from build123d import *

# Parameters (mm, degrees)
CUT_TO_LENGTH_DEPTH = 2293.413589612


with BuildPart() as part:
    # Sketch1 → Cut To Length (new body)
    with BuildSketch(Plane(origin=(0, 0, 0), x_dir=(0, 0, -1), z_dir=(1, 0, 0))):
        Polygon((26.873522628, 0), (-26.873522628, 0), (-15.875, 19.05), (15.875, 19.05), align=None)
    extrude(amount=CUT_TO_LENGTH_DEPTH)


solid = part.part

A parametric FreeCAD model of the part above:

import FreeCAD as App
import Part
import Sketcher

V = App.Vector
Q = App.Units.Quantity

doc = App.newDocument("Part")
body = doc.addObject("PartDesign::Body", "Body")

# Sketch on YZ plane
sketch1 = body.newObject("Sketcher::SketchObject", "Sketch")
sketch1.AttachmentSupport = (doc.getObject("YZ_Plane"), [""])
sketch1.MapMode = "FlatFace"
sketch1.addGeometry(Part.LineSegment(V(0, 26.873523, 0), V(0, -26.873523, 0)), False)
sketch1.addGeometry(Part.LineSegment(V(0, -26.873523, 0), V(19.05, -15.875, 0)), False)
sketch1.addGeometry(Part.LineSegment(V(19.05, -15.875, 0), V(19.05, 15.875, 0)), False)
sketch1.addGeometry(Part.LineSegment(V(19.05, 15.875, 0), V(0, 26.873523, 0)), False)
sketch1.addConstraint(Sketcher.Constraint("Coincident", 0, 2, 1, 1))
sketch1.addConstraint(Sketcher.Constraint("Coincident", 1, 2, 2, 1))
sketch1.addConstraint(Sketcher.Constraint("Coincident", 2, 2, 3, 1))
sketch1.addConstraint(Sketcher.Constraint("Coincident", 3, 2, 0, 1))
sketch1.addConstraint(Sketcher.Constraint("Vertical", 0))
sketch1.addConstraint(Sketcher.Constraint("Vertical", 2))
sketch1.addConstraint(Sketcher.Constraint("Symmetric", 0, 2, 3, 2, -1, 1))
sketch1.addConstraint(Sketcher.Constraint("Equal", 1, 3))
sketch1.addConstraint(Sketcher.Constraint("Angle", 1, Q("30 deg")))
sketch1.addConstraint(Sketcher.Constraint("DistanceY", 2, 1, 2, 2, Q("1.25 in")))
sketch1.addConstraint(Sketcher.Constraint("DistanceX", -1, 1, 1, 2, Q("0.75 in")))
pad1 = body.newObject("PartDesign::Pad", "Pad")
pad1.Profile = sketch1
pad1.Length = 2293.41359

doc.recompute()
